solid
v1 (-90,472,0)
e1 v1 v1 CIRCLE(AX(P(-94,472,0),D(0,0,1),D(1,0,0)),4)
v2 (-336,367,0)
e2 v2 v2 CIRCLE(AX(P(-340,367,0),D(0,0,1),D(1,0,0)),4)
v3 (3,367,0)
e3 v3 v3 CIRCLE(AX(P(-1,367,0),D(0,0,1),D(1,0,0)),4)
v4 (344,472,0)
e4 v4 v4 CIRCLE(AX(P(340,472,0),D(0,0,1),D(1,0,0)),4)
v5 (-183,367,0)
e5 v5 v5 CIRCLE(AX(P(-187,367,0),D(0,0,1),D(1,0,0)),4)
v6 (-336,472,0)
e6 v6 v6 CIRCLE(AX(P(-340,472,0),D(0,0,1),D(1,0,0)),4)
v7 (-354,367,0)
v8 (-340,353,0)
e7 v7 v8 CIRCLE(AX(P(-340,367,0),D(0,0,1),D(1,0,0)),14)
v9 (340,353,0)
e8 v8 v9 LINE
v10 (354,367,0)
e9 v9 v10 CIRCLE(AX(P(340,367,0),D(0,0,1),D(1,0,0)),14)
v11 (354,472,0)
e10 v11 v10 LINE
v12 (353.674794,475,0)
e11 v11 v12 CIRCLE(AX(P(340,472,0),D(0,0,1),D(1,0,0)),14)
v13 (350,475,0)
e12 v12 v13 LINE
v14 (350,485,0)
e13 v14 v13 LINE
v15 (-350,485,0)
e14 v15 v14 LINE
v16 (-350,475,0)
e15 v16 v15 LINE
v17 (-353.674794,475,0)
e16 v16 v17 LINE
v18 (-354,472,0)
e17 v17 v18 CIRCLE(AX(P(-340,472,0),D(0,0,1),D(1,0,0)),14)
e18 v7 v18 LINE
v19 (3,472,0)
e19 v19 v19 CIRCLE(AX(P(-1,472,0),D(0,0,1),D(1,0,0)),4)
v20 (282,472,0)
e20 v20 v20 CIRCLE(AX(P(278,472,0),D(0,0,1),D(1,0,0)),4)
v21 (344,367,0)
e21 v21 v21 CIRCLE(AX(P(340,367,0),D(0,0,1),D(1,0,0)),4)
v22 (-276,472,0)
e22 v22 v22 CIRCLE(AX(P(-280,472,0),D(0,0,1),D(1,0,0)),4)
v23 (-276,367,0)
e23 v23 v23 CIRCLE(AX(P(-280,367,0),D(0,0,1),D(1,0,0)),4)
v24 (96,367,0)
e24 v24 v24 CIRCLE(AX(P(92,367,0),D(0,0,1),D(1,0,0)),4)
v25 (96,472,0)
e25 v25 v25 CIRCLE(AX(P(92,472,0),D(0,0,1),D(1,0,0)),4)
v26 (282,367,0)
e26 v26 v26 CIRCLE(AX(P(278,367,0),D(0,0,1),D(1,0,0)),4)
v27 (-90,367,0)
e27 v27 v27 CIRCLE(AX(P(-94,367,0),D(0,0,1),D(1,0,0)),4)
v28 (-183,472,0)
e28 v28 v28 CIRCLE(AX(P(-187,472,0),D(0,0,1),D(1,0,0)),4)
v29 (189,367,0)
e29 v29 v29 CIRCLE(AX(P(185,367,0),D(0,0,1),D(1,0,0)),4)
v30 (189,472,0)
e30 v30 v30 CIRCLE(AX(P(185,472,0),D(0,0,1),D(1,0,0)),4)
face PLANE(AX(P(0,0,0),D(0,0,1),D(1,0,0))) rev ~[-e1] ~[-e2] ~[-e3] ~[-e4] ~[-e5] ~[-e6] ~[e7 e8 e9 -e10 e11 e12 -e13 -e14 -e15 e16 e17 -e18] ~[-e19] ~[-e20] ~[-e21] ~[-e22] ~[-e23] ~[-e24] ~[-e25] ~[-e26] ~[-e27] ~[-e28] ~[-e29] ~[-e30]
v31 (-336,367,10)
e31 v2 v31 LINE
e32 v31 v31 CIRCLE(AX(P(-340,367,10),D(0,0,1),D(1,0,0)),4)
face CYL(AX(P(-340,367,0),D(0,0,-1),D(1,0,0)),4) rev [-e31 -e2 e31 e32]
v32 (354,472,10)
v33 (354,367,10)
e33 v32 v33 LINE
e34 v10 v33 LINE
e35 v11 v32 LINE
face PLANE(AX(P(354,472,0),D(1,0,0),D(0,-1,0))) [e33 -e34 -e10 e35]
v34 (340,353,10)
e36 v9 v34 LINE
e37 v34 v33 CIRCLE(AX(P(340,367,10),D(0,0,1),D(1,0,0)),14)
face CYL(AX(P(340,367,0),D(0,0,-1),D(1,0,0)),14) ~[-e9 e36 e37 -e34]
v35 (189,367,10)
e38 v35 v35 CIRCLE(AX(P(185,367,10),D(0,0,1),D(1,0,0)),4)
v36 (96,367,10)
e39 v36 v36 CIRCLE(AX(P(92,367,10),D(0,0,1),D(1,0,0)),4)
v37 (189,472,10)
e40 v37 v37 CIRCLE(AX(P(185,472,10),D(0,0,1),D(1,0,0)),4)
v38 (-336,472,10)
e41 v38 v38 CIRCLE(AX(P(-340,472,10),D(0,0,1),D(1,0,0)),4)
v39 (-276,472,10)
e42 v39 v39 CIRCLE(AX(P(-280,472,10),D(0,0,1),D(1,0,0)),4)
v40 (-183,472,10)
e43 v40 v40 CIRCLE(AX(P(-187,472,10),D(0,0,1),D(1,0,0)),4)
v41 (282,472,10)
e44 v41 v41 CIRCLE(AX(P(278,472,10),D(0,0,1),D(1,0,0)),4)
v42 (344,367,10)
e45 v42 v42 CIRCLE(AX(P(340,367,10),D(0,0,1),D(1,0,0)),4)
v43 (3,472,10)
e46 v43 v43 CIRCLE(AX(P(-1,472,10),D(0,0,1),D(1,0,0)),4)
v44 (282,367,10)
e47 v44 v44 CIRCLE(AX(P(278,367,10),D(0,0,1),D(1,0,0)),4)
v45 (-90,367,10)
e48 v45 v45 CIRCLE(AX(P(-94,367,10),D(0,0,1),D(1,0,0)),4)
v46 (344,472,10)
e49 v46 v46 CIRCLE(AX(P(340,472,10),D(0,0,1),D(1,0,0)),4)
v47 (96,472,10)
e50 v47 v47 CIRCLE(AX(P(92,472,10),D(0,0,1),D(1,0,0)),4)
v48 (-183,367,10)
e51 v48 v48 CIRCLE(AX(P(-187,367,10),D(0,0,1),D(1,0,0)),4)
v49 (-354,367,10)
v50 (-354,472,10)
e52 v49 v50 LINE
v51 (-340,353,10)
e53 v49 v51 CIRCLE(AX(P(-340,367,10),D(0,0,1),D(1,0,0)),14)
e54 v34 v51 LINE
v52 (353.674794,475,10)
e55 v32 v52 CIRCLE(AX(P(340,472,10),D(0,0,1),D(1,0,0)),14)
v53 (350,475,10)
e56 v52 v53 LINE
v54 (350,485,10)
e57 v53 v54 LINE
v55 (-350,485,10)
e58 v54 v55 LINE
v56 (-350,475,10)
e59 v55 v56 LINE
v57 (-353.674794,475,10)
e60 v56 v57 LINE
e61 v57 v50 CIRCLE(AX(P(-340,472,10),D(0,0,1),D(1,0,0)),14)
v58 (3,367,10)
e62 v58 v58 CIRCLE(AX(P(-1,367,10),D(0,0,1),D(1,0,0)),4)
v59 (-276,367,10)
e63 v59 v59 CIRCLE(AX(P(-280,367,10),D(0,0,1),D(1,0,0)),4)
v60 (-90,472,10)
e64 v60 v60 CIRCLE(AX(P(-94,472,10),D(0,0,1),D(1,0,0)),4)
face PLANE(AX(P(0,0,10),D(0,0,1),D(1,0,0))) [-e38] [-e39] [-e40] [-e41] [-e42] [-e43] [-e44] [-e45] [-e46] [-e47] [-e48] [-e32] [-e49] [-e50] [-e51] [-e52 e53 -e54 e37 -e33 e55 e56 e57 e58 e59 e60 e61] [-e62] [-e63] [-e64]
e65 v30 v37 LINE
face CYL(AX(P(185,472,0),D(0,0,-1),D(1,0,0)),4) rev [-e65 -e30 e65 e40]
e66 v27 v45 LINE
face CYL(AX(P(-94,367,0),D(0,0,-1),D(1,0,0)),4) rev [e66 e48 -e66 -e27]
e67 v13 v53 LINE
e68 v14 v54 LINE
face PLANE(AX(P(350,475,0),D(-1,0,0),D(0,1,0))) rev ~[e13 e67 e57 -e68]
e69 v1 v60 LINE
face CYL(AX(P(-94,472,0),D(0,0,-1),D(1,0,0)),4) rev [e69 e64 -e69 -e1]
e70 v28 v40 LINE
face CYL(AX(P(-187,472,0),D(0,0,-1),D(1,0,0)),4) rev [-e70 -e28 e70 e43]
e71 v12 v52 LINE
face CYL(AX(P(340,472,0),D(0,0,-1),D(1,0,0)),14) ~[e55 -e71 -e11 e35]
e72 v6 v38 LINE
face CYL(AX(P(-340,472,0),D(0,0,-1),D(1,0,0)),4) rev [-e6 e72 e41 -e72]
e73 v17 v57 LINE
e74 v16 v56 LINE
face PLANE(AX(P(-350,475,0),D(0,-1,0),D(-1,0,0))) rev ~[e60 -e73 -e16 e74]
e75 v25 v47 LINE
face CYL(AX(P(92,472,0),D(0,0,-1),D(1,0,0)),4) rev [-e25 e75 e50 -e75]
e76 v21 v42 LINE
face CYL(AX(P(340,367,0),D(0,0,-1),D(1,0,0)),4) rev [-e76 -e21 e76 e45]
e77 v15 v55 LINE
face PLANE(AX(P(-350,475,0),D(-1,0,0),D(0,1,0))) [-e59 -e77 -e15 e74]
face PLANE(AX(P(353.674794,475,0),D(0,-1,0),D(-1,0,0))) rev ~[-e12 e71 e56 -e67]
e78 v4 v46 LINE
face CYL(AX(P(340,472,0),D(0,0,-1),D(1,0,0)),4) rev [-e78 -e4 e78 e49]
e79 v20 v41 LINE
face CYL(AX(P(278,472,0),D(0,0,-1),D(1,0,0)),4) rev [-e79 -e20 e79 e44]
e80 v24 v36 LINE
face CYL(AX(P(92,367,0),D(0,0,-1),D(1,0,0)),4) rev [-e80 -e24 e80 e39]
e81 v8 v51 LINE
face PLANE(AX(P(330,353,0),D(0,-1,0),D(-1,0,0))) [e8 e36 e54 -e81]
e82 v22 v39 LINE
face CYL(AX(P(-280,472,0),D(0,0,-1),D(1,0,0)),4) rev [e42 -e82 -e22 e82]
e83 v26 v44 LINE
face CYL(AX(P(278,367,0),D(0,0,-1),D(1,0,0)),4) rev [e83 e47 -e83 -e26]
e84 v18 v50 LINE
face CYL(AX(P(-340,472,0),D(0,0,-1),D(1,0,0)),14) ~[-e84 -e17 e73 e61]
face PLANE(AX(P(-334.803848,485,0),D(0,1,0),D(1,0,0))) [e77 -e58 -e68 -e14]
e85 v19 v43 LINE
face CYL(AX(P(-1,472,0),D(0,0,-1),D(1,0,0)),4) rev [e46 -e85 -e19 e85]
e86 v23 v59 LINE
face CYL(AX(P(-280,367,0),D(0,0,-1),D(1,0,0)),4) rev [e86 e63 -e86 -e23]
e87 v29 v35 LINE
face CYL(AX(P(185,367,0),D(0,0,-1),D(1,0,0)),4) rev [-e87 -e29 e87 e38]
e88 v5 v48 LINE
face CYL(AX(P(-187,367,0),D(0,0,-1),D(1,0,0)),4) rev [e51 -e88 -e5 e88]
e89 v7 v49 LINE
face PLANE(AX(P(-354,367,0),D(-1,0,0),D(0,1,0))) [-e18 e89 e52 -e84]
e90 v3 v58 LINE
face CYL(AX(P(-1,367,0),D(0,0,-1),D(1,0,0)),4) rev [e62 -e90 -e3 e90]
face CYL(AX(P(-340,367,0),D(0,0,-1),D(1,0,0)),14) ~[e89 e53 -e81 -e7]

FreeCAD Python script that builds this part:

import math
import FreeCAD as App
import Part
import Sketcher

V = App.Vector
Q = App.Units.Quantity

doc = App.newDocument("Part")
body = doc.addObject("PartDesign::Body", "Body")

# Sketch on XY plane
sketch1 = body.newObject("Sketcher::SketchObject", "Sketch")
sketch1.AttachmentSupport = (doc.getObject("XY_Plane"), [""])
sketch1.MapMode = "FlatFace"
sketch1.addGeometry([
    Part.ArcOfCircle(Part.Circle(V(340, 367, 0), V(0, 0, 1), 14), math.radians(-90), math.radians(0)),  # 0
    Part.LineSegment(V(354, 367, 0), V(354, 472, 0)),  # 1
    Part.ArcOfCircle(Part.Circle(V(340, 472, 0), V(0, 0, 1), 14), math.radians(0), math.radians(12.373625)),  # 2
    Part.LineSegment(V(353.674794, 475, 0), V(350, 475, 0)),  # 3
    Part.LineSegment(V(350, 475, 0), V(350, 485, 0)),  # 4
    Part.LineSegment(V(350, 485, 0), V(-350, 485, 0)),  # 5
    Part.LineSegment(V(-350, 485, 0), V(-350, 475, 0)),  # 6
    Part.LineSegment(V(-350, 475, 0), V(-353.674794, 475, 0)),  # 7
    Part.ArcOfCircle(Part.Circle(V(-340, 472, 0), V(0, 0, 1), 14), math.radians(167.626375), math.radians(180)),  # 8
    Part.LineSegment(V(-354, 472, 0), V(-354, 367, 0)),  # 9
    Part.ArcOfCircle(Part.Circle(V(-340, 367, 0), V(0, 0, 1), 14), math.radians(180), math.radians(270)),  # 10
    Part.LineSegment(V(-340, 353, 0), V(340, 353, 0)),  # 11
    Part.Circle(V(-280, 367, 0), V(0, 0, 1), 4),  # 12
    Part.Circle(V(-187, 367, 0), V(0, 0, 1), 4),  # 13
    Part.Circle(V(-94, 367, 0), V(0, 0, 1), 4),  # 14
    Part.Circle(V(-1, 367, 0), V(0, 0, 1), 4),  # 15
    Part.Circle(V(92, 367, 0), V(0, 0, 1), 4),  # 16
    Part.Circle(V(185, 367, 0), V(0, 0, 1), 4),  # 17
    Part.Circle(V(278, 367, 0), V(0, 0, 1), 4),  # 18
    Part.Circle(V(185, 472, 0), V(0, 0, 1), 4),  # 19
    Part.Circle(V(278, 472, 0), V(0, 0, 1), 4),  # 20
    Part.Circle(V(-280, 472, 0), V(0, 0, 1), 4),  # 21
    Part.Circle(V(-187, 472, 0), V(0, 0, 1), 4),  # 22
    Part.Circle(V(-94, 472, 0), V(0, 0, 1), 4),  # 23
    Part.Circle(V(-1, 472, 0), V(0, 0, 1), 4),  # 24
    Part.Circle(V(92, 472, 0), V(0, 0, 1), 4),  # 25
    Part.Circle(V(-340, 367, 0), V(0, 0, 1), 4),  # 26
    Part.Circle(V(-340, 472, 0), V(0, 0, 1), 4),  # 27
    Part.Circle(V(340, 472, 0), V(0, 0, 1), 4),  # 28
    Part.Circle(V(340, 367, 0), V(0, 0, 1), 4),  # 29
], False)
sketch1.addConstraint([
    Sketcher.Constraint("Tangent", 0, 2, 1, 1),
    Sketcher.Constraint("Tangent", 1, 2, 2, 1),
    Sketcher.Constraint("Coincident", 2, 2, 3, 1),
    Sketcher.Constraint("Coincident", 3, 2, 4, 1),
    Sketcher.Constraint("Coincident", 4, 2, 5, 1),
    Sketcher.Constraint("Coincident", 5, 2, 6, 1),
    Sketcher.Constraint("Coincident", 6, 2, 7, 1),
    Sketcher.Constraint("Coincident", 7, 2, 8, 1),
    Sketcher.Constraint("Tangent", 8, 2, 9, 1),
    Sketcher.Constraint("Tangent", 9, 2, 10, 1),
    Sketcher.Constraint("Tangent", 10, 2, 11, 1),
    Sketcher.Constraint("Tangent", 11, 2, 0, 1),
    Sketcher.Constraint("Vertical", 1),
    Sketcher.Constraint("Horizontal", 3),
    Sketcher.Constraint("Vertical", 4),
    Sketcher.Constraint("Horizontal", 5),
    Sketcher.Constraint("Vertical", 6),
    Sketcher.Constraint("Horizontal", 7),
    Sketcher.Constraint("Vertical", 9),
    Sketcher.Constraint("Horizontal", 11),
    Sketcher.Constraint("Coincident", 26, 3, 10, 3),
    Sketcher.Constraint("Coincident", 27, 3, 8, 3),
    Sketcher.Constraint("Coincident", 28, 3, 2, 3),
    Sketcher.Constraint("Coincident", 29, 3, 0, 3),
    Sketcher.Constraint("Equal", 0, 2),
    Sketcher.Constraint("Equal", 2, 8),
    Sketcher.Constraint("Equal", 8, 10),
    Sketcher.Constraint("Equal", 12, 13),
    Sketcher.Constraint("Equal", 13, 14),
    Sketcher.Constraint("Equal", 14, 15),
    Sketcher.Constraint("Equal", 15, 16),
    Sketcher.Constraint("Equal", 16, 17),
    Sketcher.Constraint("Equal", 17, 18),
    Sketcher.Constraint("Equal", 18, 19),
    Sketcher.Constraint("Equal", 19, 20),
    Sketcher.Constraint("Equal", 20, 21),
    Sketcher.Constraint("Equal", 21, 22),
    Sketcher.Constraint("Equal", 22, 23),
    Sketcher.Constraint("Equal", 23, 24),
    Sketcher.Constraint("Equal", 24, 25),
    Sketcher.Constraint("Equal", 25, 26),
    Sketcher.Constraint("Equal", 26, 27),
    Sketcher.Constraint("Equal", 27, 28),
    Sketcher.Constraint("Equal", 28, 29),
    Sketcher.Constraint("Symmetric", 2, 3, 8, 3, -2),
    Sketcher.Constraint("Symmetric", 3, 2, 6, 2, -2),
    Sketcher.Constraint("Horizontal", 10, 3, 12, 3),
    Sketcher.Constraint("Horizontal", 12, 3, 13, 3),
    Sketcher.Constraint("Horizontal", 13, 3, 14, 3),
    Sketcher.Constraint("Horizontal", 14, 3, 15, 3),
    Sketcher.Constraint("Horizontal", 15, 3, 16, 3),
    Sketcher.Constraint("Horizontal", 16, 3, 17, 3),
    Sketcher.Constraint("Horizontal", 17, 3, 18, 3),
    Sketcher.Constraint("Horizontal", 8, 3, 19, 3),
    Sketcher.Constraint("Horizontal", 19, 3, 20, 3),
    Sketcher.Constraint("Horizontal", 20, 3, 21, 3),
    Sketcher.Constraint("Horizontal", 21, 3, 22, 3),
    Sketcher.Constraint("Horizontal", 22, 3, 23, 3),
    Sketcher.Constraint("Horizontal", 23, 3, 24, 3),
    Sketcher.Constraint("Horizontal", 24, 3, 25, 3),
    Sketcher.Constraint("Vertical", 17, 3, 19, 3),
    Sketcher.Constraint("Vertical", 18, 3, 20, 3),
    Sketcher.Constraint("Vertical", 12, 3, 21, 3),
    Sketcher.Constraint("Vertical", 13, 3, 22, 3),
    Sketcher.Constraint("Vertical", 14, 3, 23, 3),
    Sketcher.Constraint("Vertical", 15, 3, 24, 3),
    Sketcher.Constraint("Vertical", 16, 3, 25, 3),
    Sketcher.Constraint("DistanceY", 4, 1, 4, 2, Q("10 mm")),
    Sketcher.Constraint("Diameter", 12, Q("8 mm")),
    Sketcher.Constraint("Radius", 0, Q("14 mm")),
    Sketcher.Constraint("DistanceX", 2, 3, 3, 2, Q("10 mm")),
    Sketcher.Constraint("DistanceX", 5, 2, 5, 1, Q("700 mm")),
    Sketcher.Constraint("DistanceY", 1, 1, 1, 2, Q("105 mm")),
    Sketcher.Constraint("DistanceY", -1, 1, 0, 3, Q("367 mm")),
    Sketcher.Constraint("DistanceX", 12, 3, -1, 1, Q("280 mm")),
    Sketcher.Constraint("DistanceX", 13, 3, -1, 1, Q("187 mm")),
    Sketcher.Constraint("DistanceX", 14, 3, -1, 1, Q("94 mm")),
    Sketcher.Constraint("DistanceX", 15, 3, -1, 1, Q("1 mm")),
    Sketcher.Constraint("DistanceX", -1, 1, 16, 3, Q("92 mm")),
    Sketcher.Constraint("DistanceX", -1, 1, 17, 3, Q("185 mm")),
    Sketcher.Constraint("DistanceX", -1, 1, 18, 3, Q("278 mm")),
    Sketcher.Constraint("DistanceY", -1, 1, 2, 2, Q("475 mm")),
])
pad1 = body.newObject("PartDesign::Pad", "Pad")
pad1.Profile = sketch1
pad1.Length = 10

doc.recompute()
